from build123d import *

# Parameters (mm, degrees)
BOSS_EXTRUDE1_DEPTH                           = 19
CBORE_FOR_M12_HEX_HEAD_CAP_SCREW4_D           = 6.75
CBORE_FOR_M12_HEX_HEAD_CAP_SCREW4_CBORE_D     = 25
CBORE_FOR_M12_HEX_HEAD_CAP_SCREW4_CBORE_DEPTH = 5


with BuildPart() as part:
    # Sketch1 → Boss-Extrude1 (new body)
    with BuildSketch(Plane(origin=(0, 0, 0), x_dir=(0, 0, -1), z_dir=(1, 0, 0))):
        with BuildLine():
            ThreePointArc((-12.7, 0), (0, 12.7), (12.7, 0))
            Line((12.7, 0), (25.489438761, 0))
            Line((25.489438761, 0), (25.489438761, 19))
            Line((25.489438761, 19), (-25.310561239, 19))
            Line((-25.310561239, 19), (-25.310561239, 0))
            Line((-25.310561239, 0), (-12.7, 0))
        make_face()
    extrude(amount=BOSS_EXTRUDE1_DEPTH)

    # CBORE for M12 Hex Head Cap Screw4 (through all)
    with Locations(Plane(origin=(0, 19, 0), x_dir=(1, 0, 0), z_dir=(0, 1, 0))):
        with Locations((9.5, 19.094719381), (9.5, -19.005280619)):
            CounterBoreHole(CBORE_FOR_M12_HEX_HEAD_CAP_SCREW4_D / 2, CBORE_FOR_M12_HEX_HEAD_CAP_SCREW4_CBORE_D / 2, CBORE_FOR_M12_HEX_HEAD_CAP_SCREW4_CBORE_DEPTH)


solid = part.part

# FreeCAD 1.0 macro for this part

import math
import FreeCAD as App
import Part
import Sketcher
from FreeCAD import Vector
Q = App.Units.Quantity

doc = App.newDocument("Part")
params = doc.addObject("Spreadsheet::Sheet", "Params")
for row, (alias, value) in enumerate([
    ("sketch1_radius", "0.5 in"),
    ("sketch1_height", "2 in"),
    ("pad1_length", "19 mm"),
    ("hole_diameter", "6.75 mm"),
    ("hole_cbore_diameter", "25 mm"),
    ("hole_cbore_depth", "5 mm"),
], start=1):
    params.set(f"A{row}", alias)
    params.set(f"B{row}", "=" + value)
    params.setAlias(f"B{row}", alias)

body = doc.addObject("PartDesign::Body", "Body")

# Sketch on YZ plane
sketch1 = body.newObject("Sketcher::SketchObject", "Sketch")
sketch1.AttachmentSupport = (doc.getObject("YZ_Plane"), [""])
sketch1.MapMode = "FlatFace"
sketch1.addGeometry([
    Part.ArcOfCircle(Part.Circle(Vector(0, 0, 0), Vector(0, 0, 1), 12.7), math.radians(-90), math.radians(90)),  # 0
    Part.LineSegment(Vector(0, -12.7, 0), Vector(0, -25.489439, 0)),  # 1
    Part.LineSegment(Vector(0, -25.489439, 0), Vector(19, -25.489439, 0)),  # 2
    Part.LineSegment(Vector(19, -25.489439, 0), Vector(19, 25.310561, 0)),  # 3
    Part.LineSegment(Vector(19, 25.310561, 0), Vector(0, 25.310561, 0)),  # 4
    Part.LineSegment(Vector(0, 25.310561, 0), Vector(0, 12.7, 0)),  # 5
], False)
sketch1.addConstraint([
    Sketcher.Constraint("Coincident", 0, 1, 1, 1),
    Sketcher.Constraint("Coincident", 1, 2, 2, 1),
    Sketcher.Constraint("Coincident", 2, 2, 3, 1),
    Sketcher.Constraint("Coincident", 3, 2, 4, 1),
    Sketcher.Constraint("Coincident", 4, 2, 5, 1),
    Sketcher.Constraint("Coincident", 5, 2, 0, 2),
    Sketcher.Constraint("Vertical", 1),
    Sketcher.Constraint("Horizontal", 2),
    Sketcher.Constraint("Vertical", 3),
    Sketcher.Constraint("Horizontal", 4),
    Sketcher.Constraint("Vertical", 5),
    Sketcher.Constraint("Coincident", 0, 3, -1, 1),
    Sketcher.Constraint("PointOnObject", 0, 1, -2),
    Sketcher.Constraint("PointOnObject", 4, 2, -2),
    Sketcher.Constraint("Radius", 0, Q("0.5 in")),
    Sketcher.Constraint("DistanceY", 3, 1, 3, 2, Q("2 in")),
    Sketcher.Constraint("DistanceX", 2, 1, 2, 2, 19.0),
    Sketcher.Constraint("DistanceY", 1, 2, 1, 1, 12.789439),
])
sketch1.setExpression("Constraints[14]", "Params.sketch1_radius")
sketch1.setExpression("Constraints[15]", "Params.sketch1_height")
pad1 = body.newObject("PartDesign::Pad", "Pad")
pad1.Profile = sketch1
pad1.setExpression("Length", "Params.pad1_length")

# Sketch on XZ plane
sketch2 = body.newObject("Sketcher::SketchObject", "Sketch001")
sketch2.AttachmentSupport = (doc.getObject("XZ_Plane"), [""])
sketch2.MapMode = "FlatFace"
sketch2.AttachmentOffset = App.Placement(Vector(0, 0, -19), App.Rotation())
sketch2.addGeometry([
    Part.Circle(Vector(9.5, -19.094719, 0), Vector(0, 0, 1), 3.375),
    Part.Circle(Vector(9.5, 19.005281, 0), Vector(0, 0, 1), 3.375),
], False)
sketch2.addConstraint([
    Sketcher.Constraint("Equal", 0, 1),
    Sketcher.Constraint("Vertical", 0, 3, 1, 3),
    Sketcher.Constraint("DistanceY", 0, 3, 1, 3, Q("1.5 in")),
    Sketcher.Constraint("Diameter", 0, 6.75),
    Sketcher.Constraint("DistanceX", -1, 1, 0, 3, 9.5),
    Sketcher.Constraint("DistanceY", 0, 3, -1, 1, 19.094719),
])
doc.recompute()
hole = body.newObject("PartDesign::Hole", "Hole")
hole.Profile = sketch2
hole.ThreadType = "None"
hole.setExpression("Diameter", "Params.hole_diameter")
hole.DepthType = "ThroughAll"
hole.HoleCutType = "Counterbore"
hole.setExpression("HoleCutDiameter", "Params.hole_cbore_diameter")
hole.setExpression("HoleCutDepth", "Params.hole_cbore_depth")
hole.Reversed = True

doc.recompute()
